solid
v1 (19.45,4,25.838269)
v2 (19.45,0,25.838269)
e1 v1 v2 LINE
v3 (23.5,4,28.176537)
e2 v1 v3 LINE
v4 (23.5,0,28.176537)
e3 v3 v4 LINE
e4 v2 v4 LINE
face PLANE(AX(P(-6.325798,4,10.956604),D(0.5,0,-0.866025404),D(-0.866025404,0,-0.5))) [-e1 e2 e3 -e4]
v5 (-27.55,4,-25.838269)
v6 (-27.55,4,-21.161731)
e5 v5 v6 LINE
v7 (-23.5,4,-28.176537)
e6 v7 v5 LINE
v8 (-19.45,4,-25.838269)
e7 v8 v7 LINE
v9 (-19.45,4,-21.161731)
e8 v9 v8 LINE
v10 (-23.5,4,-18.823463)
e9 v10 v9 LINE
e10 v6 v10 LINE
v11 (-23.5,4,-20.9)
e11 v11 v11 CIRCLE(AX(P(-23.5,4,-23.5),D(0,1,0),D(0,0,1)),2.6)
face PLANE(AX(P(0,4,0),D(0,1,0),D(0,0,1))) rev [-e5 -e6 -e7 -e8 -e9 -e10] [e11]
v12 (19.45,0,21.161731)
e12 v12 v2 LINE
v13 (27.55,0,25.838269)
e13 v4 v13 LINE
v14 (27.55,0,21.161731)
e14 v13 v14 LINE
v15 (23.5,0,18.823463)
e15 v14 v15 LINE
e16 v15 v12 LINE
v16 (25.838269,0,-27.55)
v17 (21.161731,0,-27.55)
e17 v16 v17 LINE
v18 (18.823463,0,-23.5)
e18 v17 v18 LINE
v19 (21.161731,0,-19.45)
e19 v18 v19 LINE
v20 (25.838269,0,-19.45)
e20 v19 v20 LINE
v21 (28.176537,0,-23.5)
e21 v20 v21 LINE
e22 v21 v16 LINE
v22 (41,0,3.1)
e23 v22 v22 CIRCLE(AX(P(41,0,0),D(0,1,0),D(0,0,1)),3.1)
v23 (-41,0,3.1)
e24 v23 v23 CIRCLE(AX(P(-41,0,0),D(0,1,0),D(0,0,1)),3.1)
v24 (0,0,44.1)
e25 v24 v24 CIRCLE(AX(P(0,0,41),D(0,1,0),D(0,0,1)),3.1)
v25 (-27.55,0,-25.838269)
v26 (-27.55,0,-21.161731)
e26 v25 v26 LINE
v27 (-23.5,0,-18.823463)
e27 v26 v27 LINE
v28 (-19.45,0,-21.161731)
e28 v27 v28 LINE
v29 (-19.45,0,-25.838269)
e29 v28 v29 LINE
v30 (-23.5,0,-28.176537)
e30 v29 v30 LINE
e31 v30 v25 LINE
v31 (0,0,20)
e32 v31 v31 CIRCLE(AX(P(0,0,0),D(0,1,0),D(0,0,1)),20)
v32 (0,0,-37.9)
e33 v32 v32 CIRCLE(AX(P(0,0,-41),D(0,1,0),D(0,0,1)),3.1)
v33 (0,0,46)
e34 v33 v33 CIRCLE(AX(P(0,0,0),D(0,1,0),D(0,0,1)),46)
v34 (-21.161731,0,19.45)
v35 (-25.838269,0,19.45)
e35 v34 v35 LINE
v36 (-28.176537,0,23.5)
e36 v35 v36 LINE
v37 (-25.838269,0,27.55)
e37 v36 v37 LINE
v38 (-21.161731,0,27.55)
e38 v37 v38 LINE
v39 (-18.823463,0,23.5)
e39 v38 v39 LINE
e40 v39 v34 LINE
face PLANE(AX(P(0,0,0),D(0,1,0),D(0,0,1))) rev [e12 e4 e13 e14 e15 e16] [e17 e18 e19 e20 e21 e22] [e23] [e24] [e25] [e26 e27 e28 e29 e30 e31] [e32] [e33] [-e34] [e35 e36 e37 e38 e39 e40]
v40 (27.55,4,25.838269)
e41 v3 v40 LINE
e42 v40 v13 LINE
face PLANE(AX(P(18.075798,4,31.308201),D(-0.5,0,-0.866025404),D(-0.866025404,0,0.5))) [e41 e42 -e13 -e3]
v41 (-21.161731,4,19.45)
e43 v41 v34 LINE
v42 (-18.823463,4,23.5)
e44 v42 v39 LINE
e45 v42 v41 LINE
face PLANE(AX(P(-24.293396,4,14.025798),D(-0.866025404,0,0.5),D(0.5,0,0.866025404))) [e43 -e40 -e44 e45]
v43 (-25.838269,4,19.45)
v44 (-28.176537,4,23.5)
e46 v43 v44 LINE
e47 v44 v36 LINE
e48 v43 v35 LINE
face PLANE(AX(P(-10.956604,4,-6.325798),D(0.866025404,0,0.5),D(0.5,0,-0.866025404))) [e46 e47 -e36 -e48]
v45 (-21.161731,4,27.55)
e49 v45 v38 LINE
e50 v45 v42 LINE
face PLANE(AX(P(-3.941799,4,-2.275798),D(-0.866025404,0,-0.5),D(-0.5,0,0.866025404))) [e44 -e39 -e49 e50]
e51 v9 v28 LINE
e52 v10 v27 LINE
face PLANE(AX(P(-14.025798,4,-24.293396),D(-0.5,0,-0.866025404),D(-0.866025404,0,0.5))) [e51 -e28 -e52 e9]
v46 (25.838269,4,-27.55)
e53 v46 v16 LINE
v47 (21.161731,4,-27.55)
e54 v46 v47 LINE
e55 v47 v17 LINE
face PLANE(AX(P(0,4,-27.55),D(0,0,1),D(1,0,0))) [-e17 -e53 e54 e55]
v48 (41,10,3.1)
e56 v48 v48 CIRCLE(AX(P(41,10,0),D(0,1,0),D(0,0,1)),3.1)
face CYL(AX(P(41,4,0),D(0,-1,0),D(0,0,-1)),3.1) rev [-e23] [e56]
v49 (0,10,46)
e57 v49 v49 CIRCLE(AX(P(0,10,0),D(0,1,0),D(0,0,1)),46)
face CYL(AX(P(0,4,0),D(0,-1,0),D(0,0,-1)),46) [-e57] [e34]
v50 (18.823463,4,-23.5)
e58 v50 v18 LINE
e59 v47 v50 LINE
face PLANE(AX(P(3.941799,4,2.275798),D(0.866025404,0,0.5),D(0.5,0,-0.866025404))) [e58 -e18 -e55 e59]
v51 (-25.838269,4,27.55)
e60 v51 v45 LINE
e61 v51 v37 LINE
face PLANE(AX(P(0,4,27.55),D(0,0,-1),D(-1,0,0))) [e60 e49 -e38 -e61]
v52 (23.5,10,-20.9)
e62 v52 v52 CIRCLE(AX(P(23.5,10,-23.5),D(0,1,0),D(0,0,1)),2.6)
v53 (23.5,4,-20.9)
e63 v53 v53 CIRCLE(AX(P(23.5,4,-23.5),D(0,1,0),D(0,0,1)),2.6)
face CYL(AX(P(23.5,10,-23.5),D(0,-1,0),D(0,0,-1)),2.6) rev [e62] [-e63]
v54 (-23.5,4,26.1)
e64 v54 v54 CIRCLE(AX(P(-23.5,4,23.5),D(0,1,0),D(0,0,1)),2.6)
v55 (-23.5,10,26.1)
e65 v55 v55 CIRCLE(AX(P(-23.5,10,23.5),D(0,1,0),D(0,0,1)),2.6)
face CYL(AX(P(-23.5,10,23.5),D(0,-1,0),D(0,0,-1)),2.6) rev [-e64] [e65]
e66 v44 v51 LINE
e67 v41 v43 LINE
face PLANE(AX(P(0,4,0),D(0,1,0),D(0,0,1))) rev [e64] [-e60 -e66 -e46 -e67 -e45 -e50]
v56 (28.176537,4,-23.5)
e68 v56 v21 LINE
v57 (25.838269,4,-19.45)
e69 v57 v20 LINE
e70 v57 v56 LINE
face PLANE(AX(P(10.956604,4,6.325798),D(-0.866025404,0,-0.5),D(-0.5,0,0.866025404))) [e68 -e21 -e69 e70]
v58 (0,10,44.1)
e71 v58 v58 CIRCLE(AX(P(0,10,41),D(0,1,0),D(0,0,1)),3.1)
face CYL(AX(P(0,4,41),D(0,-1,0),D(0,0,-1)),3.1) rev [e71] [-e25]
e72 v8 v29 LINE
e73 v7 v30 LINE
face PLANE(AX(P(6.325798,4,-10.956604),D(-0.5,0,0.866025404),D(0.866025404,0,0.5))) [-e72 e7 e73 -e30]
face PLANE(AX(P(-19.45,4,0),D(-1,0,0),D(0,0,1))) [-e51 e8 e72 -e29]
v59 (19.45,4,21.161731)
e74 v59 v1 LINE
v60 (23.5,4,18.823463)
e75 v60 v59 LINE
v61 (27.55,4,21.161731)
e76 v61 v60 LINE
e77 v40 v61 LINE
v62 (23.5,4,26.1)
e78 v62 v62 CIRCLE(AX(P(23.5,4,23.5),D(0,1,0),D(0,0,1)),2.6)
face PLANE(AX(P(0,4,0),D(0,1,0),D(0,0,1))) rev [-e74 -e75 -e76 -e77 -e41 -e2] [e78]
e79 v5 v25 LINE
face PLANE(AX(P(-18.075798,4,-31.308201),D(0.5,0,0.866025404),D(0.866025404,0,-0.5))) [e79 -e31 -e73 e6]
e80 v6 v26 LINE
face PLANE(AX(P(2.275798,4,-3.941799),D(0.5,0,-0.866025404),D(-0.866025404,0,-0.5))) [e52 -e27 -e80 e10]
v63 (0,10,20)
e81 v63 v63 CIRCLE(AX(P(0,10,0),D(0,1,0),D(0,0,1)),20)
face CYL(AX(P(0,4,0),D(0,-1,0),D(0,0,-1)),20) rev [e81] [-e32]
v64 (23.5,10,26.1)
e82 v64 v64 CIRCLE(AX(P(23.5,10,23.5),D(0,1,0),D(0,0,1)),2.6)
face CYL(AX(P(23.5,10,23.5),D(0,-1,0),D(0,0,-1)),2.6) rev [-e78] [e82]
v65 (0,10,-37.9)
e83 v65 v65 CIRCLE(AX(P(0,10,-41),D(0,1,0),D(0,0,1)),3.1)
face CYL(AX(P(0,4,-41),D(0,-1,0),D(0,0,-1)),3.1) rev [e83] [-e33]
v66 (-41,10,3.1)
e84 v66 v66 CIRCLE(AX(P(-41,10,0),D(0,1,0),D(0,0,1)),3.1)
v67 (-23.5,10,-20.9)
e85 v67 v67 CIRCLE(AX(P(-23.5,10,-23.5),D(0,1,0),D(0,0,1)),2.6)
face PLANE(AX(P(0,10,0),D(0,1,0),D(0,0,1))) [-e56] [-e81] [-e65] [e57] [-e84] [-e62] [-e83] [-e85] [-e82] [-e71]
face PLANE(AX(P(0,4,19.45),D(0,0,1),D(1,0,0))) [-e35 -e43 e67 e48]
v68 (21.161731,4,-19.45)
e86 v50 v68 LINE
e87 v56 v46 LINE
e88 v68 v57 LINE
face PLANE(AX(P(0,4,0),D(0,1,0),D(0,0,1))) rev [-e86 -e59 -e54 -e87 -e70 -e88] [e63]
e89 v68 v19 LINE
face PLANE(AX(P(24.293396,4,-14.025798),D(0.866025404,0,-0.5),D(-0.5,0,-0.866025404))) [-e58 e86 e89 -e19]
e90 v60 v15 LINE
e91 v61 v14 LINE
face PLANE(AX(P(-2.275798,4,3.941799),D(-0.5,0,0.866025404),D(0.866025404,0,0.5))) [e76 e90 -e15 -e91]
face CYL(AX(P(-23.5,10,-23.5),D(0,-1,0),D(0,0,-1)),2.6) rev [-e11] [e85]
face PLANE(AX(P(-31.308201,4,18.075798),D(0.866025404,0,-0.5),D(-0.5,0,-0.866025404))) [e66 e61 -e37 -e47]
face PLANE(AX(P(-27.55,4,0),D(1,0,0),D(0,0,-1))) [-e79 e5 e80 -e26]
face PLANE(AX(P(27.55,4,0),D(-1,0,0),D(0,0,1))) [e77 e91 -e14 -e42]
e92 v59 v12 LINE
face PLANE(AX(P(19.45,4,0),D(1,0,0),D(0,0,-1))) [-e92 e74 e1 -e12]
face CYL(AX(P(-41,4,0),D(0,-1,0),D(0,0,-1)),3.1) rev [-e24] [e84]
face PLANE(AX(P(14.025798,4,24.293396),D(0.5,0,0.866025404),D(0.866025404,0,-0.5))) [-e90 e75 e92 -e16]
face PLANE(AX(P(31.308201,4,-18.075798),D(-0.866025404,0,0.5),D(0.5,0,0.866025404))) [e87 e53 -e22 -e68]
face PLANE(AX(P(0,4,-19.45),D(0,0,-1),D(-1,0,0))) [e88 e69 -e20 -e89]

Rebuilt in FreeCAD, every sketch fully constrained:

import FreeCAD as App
import Part
import Sketcher
from FreeCAD import Vector
Q = App.Units.Quantity


def add_polygon(sketch, points):
    """Adds a closed chain of lines whose ends are joined by coincident constraints."""
    first, n = sketch.GeometryCount, len(points)
    for a, b in zip(points, points[1:] + points[:1]):
        sketch.addGeometry(Part.LineSegment(App.Vector(*a, 0), App.Vector(*b, 0)), False)
    for i in range(n):
        sketch.addConstraint(Sketcher.Constraint("Coincident", first + i, 2, first + (i + 1) % n, 1))

doc = App.newDocument("Part")
body = doc.addObject("PartDesign::Body", "Body")

sketch1 = body.newObject("Sketcher::SketchObject", "Sketch")
sketch1.AttachmentSupport = (doc.getObject("XZ_Plane"), [""])
sketch1.MapMode = "FlatFace"
sketch1.addGeometry(Part.Circle(Vector(0, 0, 0), Vector(0, 0, 1), 46), False)
add_polygon(sketch1, [(-19.45, -25.838269), (-19.45, -21.161731), (-23.5, -18.823463), (-27.55, -21.161731), (-27.55, -25.838269), (-23.5, -28.176537)])
sketch1.addGeometry(Part.Circle(Vector(0, -41, 0), Vector(0, 0, 1), 3.1), False)
sketch1.addGeometry(Part.Circle(Vector(-41, 0, 0), Vector(0, 0, 1), 3.1), False)
add_polygon(sketch1, [(-25.838269, 19.45), (-21.161731, 19.45), (-18.823463, 23.5), (-21.161731, 27.55), (-25.838269, 27.55), (-28.176537, 23.5)])
add_polygon(sketch1, [(25.838269, -19.45), (21.161731, -19.45), (18.823463, -23.5), (21.161731, -27.55), (25.838269, -27.55), (28.176537, -23.5)])
sketch1.addGeometry(Part.Circle(Vector(41, 0, 0), Vector(0, 0, 1), 3.1), False)
sketch1.addGeometry(Part.Circle(Vector(0, 0, 0), Vector(0, 0, 1), 20), False)
sketch1.addGeometry(Part.Circle(Vector(0, 41, 0), Vector(0, 0, 1), 3.1), False)
add_polygon(sketch1, [(19.45, 25.838269), (19.45, 21.161731), (23.5, 18.823463), (27.55, 21.161731), (27.55, 25.838269), (23.5, 28.176537)])
sketch1.addConstraint([
    Sketcher.Constraint("Vertical", 1),
    Sketcher.Constraint("Vertical", 4),
    Sketcher.Constraint("Horizontal", 9),
    Sketcher.Constraint("Horizontal", 12),
    Sketcher.Constraint("Horizontal", 15),
    Sketcher.Constraint("Horizontal", 18),
    Sketcher.Constraint("Vertical", 24),
    Sketcher.Constraint("Vertical", 27),
    Sketcher.Constraint("Coincident", 0, 3, -1, 1),
    Sketcher.Constraint("Coincident", 22, 3, -1, 1),
    Sketcher.Constraint("Equal", 7, 8),
    Sketcher.Constraint("Equal", 8, 21),
    Sketcher.Constraint("Equal", 21, 23),
    Sketcher.Constraint("Symmetric", 8, 3, 21, 3, -1, 1),
    Sketcher.Constraint("Symmetric", 7, 3, 23, 3, -1, 1),
    Sketcher.Constraint("Symmetric", 9, 2, 15, 2, -1, 1),
    Sketcher.Constraint("Symmetric", 10, 2, 16, 2, -1, 1),
    Sketcher.Constraint("Symmetric", 11, 2, 17, 2, -1, 1),
    Sketcher.Constraint("Symmetric", 13, 2, 19, 2, -1, 1),
    Sketcher.Constraint("Symmetric", 1, 2, 24, 2, -1, 1),
    Sketcher.Constraint("Symmetric", 2, 2, 25, 2, -1, 1),
    Sketcher.Constraint("Symmetric", 3, 2, 26, 2, -1, 1),
    Sketcher.Constraint("Symmetric", 5, 2, 28, 2, -1, 1),
    Sketcher.Constraint("PointOnObject", 7, 3, -2),
    Sketcher.Constraint("PointOnObject", 8, 3, -1),
    Sketcher.Constraint("Parallel", 2, 5),
    Sketcher.Constraint("Parallel", 3, 6),
    Sketcher.Constraint("Perpendicular", 5, 10),
    Sketcher.Constraint("Perpendicular", 6, 11),
    Sketcher.Constraint("Parallel", 10, 13),
    Sketcher.Constraint("Parallel", 11, 14),
    Sketcher.Constraint("Parallel", 16, 19),
    Sketcher.Constraint("Parallel", 17, 20),
    Sketcher.Constraint("Parallel", 25, 28),
    Sketcher.Constraint("Parallel", 26, 29),
    Sketcher.Constraint("Horizontal", 1, 2, 3, 2),
    Sketcher.Constraint("Horizontal", 4, 2, 6, 2),
    Sketcher.Constraint("Horizontal", 10, 2, 13, 2),
    Sketcher.Constraint("Vertical", 2, 2, 5, 2),
    Sketcher.Constraint("Vertical", 9, 2, 11, 2),
    Sketcher.Constraint("Equal", 18, 1),
    Sketcher.Constraint("Equal", 6, 10),
    Sketcher.Constraint("Diameter", 0, Q("92 mm")),
    Sketcher.Constraint("Diameter", 22, Q("40 mm")),
    Sketcher.Constraint("Diameter", 7, Q("6.2 mm")),
    Sketcher.Constraint("Angle", 2, Q("150 deg")),
    Sketcher.Constraint("DistanceY", 7, 3, -1, 1, Q("41 mm")),
    Sketcher.Constraint("DistanceX", 8, 3, -1, 1, Q("41 mm")),
    Sketcher.Constraint("DistanceX", 2, 2, -1, 1, Q("23.5 mm")),
    Sketcher.Constraint("DistanceY", -1, 1, 10, 2, Q("23.5 mm")),
    Sketcher.Constraint("DistanceX", 3, 2, 1, 2, Q("8.1 mm")),
    Sketcher.Constraint("DistanceX", 9, 1, 9, 2, Q("4.676537 mm")),
    Sketcher.Constraint("DistanceY", 1, 2, -1, 1, Q("21.161731 mm")),
    Sketcher.Constraint("DistanceX", 9, 2, -1, 1, Q("21.161731 mm")),
])
pad1 = body.newObject("PartDesign::Pad", "Pad")
pad1.Profile = sketch1
pad1.Length = 4
pad1.Reversed = True

sketch2 = body.newObject("Sketcher::SketchObject", "Sketch001")
sketch2.AttachmentSupport = (doc.getObject("XZ_Plane"), [""])
sketch2.MapMode = "FlatFace"
sketch2.AttachmentOffset = App.Placement(Vector(0, 0, -4), App.Rotation())
sketch2.addGeometry([
    Part.Circle(Vector(0, 0, 0), Vector(0, 0, 1), 46),
    Part.Circle(Vector(0, -41, 0), Vector(0, 0, 1), 3.1),
    Part.Circle(Vector(-41, 0, 0), Vector(0, 0, 1), 3.1),
    Part.Circle(Vector(41, 0, 0), Vector(0, 0, 1), 3.1),
    Part.Circle(Vector(0, 0, 0), Vector(0, 0, 1), 20),
    Part.Circle(Vector(0, 41, 0), Vector(0, 0, 1), 3.1),
    Part.Circle(Vector(-23.5, -23.5, 0), Vector(0, 0, 1), 2.6),
    Part.Circle(Vector(-23.5, 23.5, 0), Vector(0, 0, 1), 2.6),
    Part.Circle(Vector(23.5, -23.5, 0), Vector(0, 0, 1), 2.6),
    Part.Circle(Vector(23.5, 23.5, 0), Vector(0, 0, 1), 2.6),
], False)
sketch2.addConstraint([
    Sketcher.Constraint("Coincident", 0, 3, -1, 1),
    Sketcher.Constraint("Coincident", 4, 3, -1, 1),
    Sketcher.Constraint("Equal", 1, 2),
    Sketcher.Constraint("Equal", 2, 3),
    Sketcher.Constraint("Equal", 3, 5),
    Sketcher.Constraint("Equal", 6, 7),
    Sketcher.Constraint("Equal", 7, 8),
    Sketcher.Constraint("Equal", 8, 9),
    Sketcher.Constraint("Symmetric", 2, 3, 3, 3, -1, 1),
    Sketcher.Constraint("Symmetric", 1, 3, 5, 3, -1, 1),
    Sketcher.Constraint("Symmetric", 7, 3, 8, 3, -1, 1),
    Sketcher.Constraint("Symmetric", 6, 3, 9, 3, -1, 1),
    Sketcher.Constraint("Symmetric", 6, 3, 8, 3, -2),
    Sketcher.Constraint("PointOnObject", 1, 3, -2),
    Sketcher.Constraint("PointOnObject", 2, 3, -1),
    Sketcher.Constraint("Diameter", 0, Q("92 mm")),
    Sketcher.Constraint("Diameter", 4, Q("40 mm")),
    Sketcher.Constraint("Diameter", 1, Q("6.2 mm")),
    Sketcher.Constraint("Diameter", 6, Q("5.2 mm")),
    Sketcher.Constraint("DistanceY", 1, 3, -1, 1, Q("41 mm")),
    Sketcher.Constraint("DistanceX", 2, 3, -1, 1, Q("41 mm")),
    Sketcher.Constraint("DistanceY", 6, 3, 7, 3, Q("47 mm")),
    Sketcher.Constraint("DistanceX", 6, 3, 8, 3, Q("47 mm")),
])
pad2 = body.newObject("PartDesign::Pad", "Pad001")
pad2.Profile = sketch2
pad2.Length = 6
pad2.Reversed = True

doc.recompute()
